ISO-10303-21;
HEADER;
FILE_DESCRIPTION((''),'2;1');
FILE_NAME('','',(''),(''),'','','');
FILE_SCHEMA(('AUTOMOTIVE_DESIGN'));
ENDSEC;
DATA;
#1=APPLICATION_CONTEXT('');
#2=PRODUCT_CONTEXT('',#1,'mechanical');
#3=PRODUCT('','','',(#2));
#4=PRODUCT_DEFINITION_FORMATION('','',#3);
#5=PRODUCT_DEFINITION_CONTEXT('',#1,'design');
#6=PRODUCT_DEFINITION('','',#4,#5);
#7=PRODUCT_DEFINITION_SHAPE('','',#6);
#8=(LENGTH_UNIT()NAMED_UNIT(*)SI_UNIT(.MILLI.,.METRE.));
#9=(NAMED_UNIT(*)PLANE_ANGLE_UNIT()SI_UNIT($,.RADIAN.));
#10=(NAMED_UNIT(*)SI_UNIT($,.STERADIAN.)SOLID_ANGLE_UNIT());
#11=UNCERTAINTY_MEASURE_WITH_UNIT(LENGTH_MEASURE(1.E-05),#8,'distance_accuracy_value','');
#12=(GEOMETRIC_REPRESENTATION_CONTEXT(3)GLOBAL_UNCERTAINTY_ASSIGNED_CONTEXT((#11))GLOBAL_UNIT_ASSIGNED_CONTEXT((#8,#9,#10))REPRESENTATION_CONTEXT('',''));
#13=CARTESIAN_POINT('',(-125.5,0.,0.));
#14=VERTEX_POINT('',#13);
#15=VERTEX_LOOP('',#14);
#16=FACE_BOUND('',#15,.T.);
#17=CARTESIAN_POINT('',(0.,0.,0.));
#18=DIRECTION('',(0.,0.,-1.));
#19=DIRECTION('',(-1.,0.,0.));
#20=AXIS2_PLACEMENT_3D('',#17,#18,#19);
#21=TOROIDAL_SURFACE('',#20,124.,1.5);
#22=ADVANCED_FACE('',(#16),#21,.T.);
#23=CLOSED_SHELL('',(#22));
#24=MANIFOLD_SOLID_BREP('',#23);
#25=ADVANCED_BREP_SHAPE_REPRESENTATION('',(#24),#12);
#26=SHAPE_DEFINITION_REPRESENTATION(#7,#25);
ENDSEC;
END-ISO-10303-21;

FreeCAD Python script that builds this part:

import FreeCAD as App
import Part
import Sketcher

V = App.Vector
Q = App.Units.Quantity

doc = App.newDocument("Part")
params = doc.addObject("Spreadsheet::Sheet", "Params")
for row, (alias, value) in enumerate([
    ("sketch1_diameter", "3 mm"),
    ("revolution_angle", "360 deg"),
], start=1):
    params.set(f"A{row}", alias)
    params.set(f"B{row}", "=" + value)
    params.setAlias(f"B{row}", alias)

body = doc.addObject("PartDesign::Body", "Body")

# Sketch on YZ plane
sketch1 = body.newObject("Sketcher::SketchObject", "Sketch")
sketch1.AttachmentSupport = (doc.getObject("YZ_Plane"), [""])
sketch1.MapMode = "FlatFace"
sketch1.addGeometry(Part.Circle(V(124, 0, 0), V(0, 0, 1), 1.5), False)
sketch1.addConstraint([
    Sketcher.Constraint("PointOnObject", 0, 3, -1),
    Sketcher.Constraint("Diameter", 0, Q("3 mm")),
    Sketcher.Constraint("DistanceX", -1, 1, 0, 3, Q("124 mm")),
])
sketch1.setExpression("Constraints[1]", "Params.sketch1_diameter")
revolution = body.newObject("PartDesign::Revolution", "Revolution")
revolution.Profile = sketch1
revolution.ReferenceAxis = (sketch1, ["V_Axis"])
revolution.setExpression("Angle", "Params.revolution_angle")

doc.recompute()
